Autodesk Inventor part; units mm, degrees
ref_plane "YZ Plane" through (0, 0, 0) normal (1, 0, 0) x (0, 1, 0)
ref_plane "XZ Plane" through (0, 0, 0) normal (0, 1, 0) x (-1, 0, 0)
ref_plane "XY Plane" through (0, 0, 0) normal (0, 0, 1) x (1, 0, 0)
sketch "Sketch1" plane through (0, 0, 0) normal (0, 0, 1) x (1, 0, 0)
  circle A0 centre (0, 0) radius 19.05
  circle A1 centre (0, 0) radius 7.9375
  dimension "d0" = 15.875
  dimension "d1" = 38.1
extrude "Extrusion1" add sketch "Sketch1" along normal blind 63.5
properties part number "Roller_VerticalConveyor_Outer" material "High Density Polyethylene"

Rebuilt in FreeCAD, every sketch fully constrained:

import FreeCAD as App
import Part
import Sketcher
from FreeCAD import Vector
Q = App.Units.Quantity

doc = App.newDocument("Part")
body = doc.addObject("PartDesign::Body", "Body")

# Sketch on XY plane
sketch1 = body.newObject("Sketcher::SketchObject", "Sketch")
sketch1.AttachmentSupport = (doc.getObject("XY_Plane"), [""])
sketch1.MapMode = "FlatFace"
sketch1.addGeometry([
    Part.Circle(Vector(0, 0, 0), Vector(0, 0, 1), 19.05),
    Part.Circle(Vector(0, 0, 0), Vector(0, 0, 1), 7.9375),
], False)
sketch1.addConstraint([
    Sketcher.Constraint("Coincident", 0, 3, -1, 1),
    Sketcher.Constraint("Coincident", 1, 3, -1, 1),
    Sketcher.Constraint("Diameter", 0, Q("1.5 in")),
    Sketcher.Constraint("Diameter", 1, Q("0.625 in")),
])
pad1 = body.newObject("PartDesign::Pad", "Pad")
pad1.Profile = sketch1
pad1.Length = Q("2.5 in")

doc.recompute()
